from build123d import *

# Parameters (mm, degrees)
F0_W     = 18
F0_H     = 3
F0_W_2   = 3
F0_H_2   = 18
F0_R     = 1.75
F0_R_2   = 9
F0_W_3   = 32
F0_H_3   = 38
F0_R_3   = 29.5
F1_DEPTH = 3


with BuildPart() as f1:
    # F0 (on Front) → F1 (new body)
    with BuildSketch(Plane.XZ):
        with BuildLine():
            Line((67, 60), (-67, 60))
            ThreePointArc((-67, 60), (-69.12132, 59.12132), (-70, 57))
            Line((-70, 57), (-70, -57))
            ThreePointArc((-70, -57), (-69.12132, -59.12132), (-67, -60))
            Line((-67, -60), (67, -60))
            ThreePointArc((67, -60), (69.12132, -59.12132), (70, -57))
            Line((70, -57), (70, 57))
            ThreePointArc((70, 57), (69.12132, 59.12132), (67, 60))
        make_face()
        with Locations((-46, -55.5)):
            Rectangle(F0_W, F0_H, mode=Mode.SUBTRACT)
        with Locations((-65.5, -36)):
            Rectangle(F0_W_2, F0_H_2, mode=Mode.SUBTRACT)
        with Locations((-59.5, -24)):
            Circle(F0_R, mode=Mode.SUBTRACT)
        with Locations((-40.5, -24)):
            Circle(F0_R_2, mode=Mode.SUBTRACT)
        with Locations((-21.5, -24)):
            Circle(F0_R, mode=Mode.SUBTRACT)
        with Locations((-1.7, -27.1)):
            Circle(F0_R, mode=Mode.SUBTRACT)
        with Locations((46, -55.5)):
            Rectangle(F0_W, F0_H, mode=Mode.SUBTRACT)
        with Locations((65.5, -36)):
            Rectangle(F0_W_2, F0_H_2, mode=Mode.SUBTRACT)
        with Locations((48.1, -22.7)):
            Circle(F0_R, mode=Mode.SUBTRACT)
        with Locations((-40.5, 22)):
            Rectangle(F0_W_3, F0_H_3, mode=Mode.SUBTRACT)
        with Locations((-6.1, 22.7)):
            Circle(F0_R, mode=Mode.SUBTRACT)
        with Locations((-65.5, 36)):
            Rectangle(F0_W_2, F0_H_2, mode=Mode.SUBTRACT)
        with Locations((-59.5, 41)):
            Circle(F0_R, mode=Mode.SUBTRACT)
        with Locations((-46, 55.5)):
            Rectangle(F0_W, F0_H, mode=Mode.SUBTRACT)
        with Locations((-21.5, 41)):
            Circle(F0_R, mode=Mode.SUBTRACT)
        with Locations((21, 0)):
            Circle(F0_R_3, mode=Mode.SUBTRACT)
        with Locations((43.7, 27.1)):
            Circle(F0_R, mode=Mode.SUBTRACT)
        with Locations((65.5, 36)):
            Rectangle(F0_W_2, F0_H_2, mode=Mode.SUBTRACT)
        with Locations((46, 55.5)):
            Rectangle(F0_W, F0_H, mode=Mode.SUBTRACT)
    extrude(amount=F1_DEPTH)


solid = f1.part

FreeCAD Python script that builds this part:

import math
import FreeCAD as App
import Part
import Sketcher
from FreeCAD import Vector

doc = App.newDocument("Part")
body = doc.addObject("PartDesign::Body", "Body")

# Sketch on XZ plane
sketch1 = doc.addObject("Sketcher::SketchObject", "Sketch")
body.addObject(sketch1)
sketch1.AttachmentSupport = (doc.XZ_Plane, [""])
sketch1.MapMode = "FlatFace"
sketch1.addGeometry(Part.LineSegment(Vector(67, 60, 0), Vector(-67, 60, 0)), False)
sketch1.addGeometry(Part.ArcOfCircle(Part.Circle(Vector(-67, 57, 0), Vector(0, 0, 1), 3), math.radians(90), math.radians(180)), False)
sketch1.addGeometry(Part.LineSegment(Vector(-70, 57, 0), Vector(-70, -57, 0)), False)
sketch1.addGeometry(Part.ArcOfCircle(Part.Circle(Vector(-67, -57, 0), Vector(0, 0, 1), 3), math.radians(-180), math.radians(-90)), False)
sketch1.addGeometry(Part.LineSegment(Vector(-67, -60, 0), Vector(67, -60, 0)), False)
sketch1.addGeometry(Part.ArcOfCircle(Part.Circle(Vector(67, -57, 0), Vector(0, 0, 1), 3), math.radians(-90), math.radians(0)), False)
sketch1.addGeometry(Part.LineSegment(Vector(70, -57, 0), Vector(70, 57, 0)), False)
sketch1.addGeometry(Part.ArcOfCircle(Part.Circle(Vector(67, 57, 0), Vector(0, 0, 1), 3), math.radians(0), math.radians(90)), False)
sketch1.addGeometry(Part.LineSegment(Vector(-37, -57, 0), Vector(-55, -57, 0)), False)
sketch1.addGeometry(Part.LineSegment(Vector(-55, -57, 0), Vector(-55, -54, 0)), False)
sketch1.addGeometry(Part.LineSegment(Vector(-55, -54, 0), Vector(-37, -54, 0)), False)
sketch1.addGeometry(Part.LineSegment(Vector(-37, -54, 0), Vector(-37, -57, 0)), False)
sketch1.addGeometry(Part.LineSegment(Vector(-64, -45, 0), Vector(-67, -45, 0)), False)
sketch1.addGeometry(Part.LineSegment(Vector(-67, -45, 0), Vector(-67, -27, 0)), False)
sketch1.addGeometry(Part.LineSegment(Vector(-67, -27, 0), Vector(-64, -27, 0)), False)
sketch1.addGeometry(Part.LineSegment(Vector(-64, -27, 0), Vector(-64, -45, 0)), False)
sketch1.addGeometry(Part.Circle(Vector(-59.5, -24, 0), Vector(0, 0, 1), 1.8), False)
sketch1.addGeometry(Part.Circle(Vector(-40.5, -24, 0), Vector(0, 0, 1), 9), False)
sketch1.addGeometry(Part.Circle(Vector(-21.5, -24, 0), Vector(0, 0, 1), 1.8), False)
sketch1.addGeometry(Part.Circle(Vector(-1.7, -27.1, 0), Vector(0, 0, 1), 1.8), False)
sketch1.addGeometry(Part.LineSegment(Vector(55, -57, 0), Vector(37, -57, 0)), False)
sketch1.addGeometry(Part.LineSegment(Vector(37, -57, 0), Vector(37, -54, 0)), False)
sketch1.addGeometry(Part.LineSegment(Vector(37, -54, 0), Vector(55, -54, 0)), False)
sketch1.addGeometry(Part.LineSegment(Vector(55, -54, 0), Vector(55, -57, 0)), False)
sketch1.addGeometry(Part.LineSegment(Vector(67, -45, 0), Vector(64, -45, 0)), False)
sketch1.addGeometry(Part.LineSegment(Vector(64, -45, 0), Vector(64, -27, 0)), False)
sketch1.addGeometry(Part.LineSegment(Vector(64, -27, 0), Vector(67, -27, 0)), False)
sketch1.addGeometry(Part.LineSegment(Vector(67, -27, 0), Vector(67, -45, 0)), False)
sketch1.addGeometry(Part.Circle(Vector(48.1, -22.7, 0), Vector(0, 0, 1), 1.8), False)
sketch1.addGeometry(Part.LineSegment(Vector(-24.5, 3, 0), Vector(-56.5, 3, 0)), False)
sketch1.addGeometry(Part.LineSegment(Vector(-56.5, 3, 0), Vector(-56.5, 41, 0)), False)
sketch1.addGeometry(Part.LineSegment(Vector(-56.5, 41, 0), Vector(-24.5, 41, 0)), False)
sketch1.addGeometry(Part.LineSegment(Vector(-24.5, 41, 0), Vector(-24.5, 3, 0)), False)
sketch1.addGeometry(Part.Circle(Vector(-6.1, 22.7, 0), Vector(0, 0, 1), 1.8), False)
sketch1.addGeometry(Part.LineSegment(Vector(-64, 27, 0), Vector(-67, 27, 0)), False)
sketch1.addGeometry(Part.LineSegment(Vector(-67, 27, 0), Vector(-67, 45, 0)), False)
sketch1.addGeometry(Part.LineSegment(Vector(-67, 45, 0), Vector(-64, 45, 0)), False)
sketch1.addGeometry(Part.LineSegment(Vector(-64, 45, 0), Vector(-64, 27, 0)), False)
sketch1.addGeometry(Part.Circle(Vector(-59.5, 41, 0), Vector(0, 0, 1), 1.8), False)
sketch1.addGeometry(Part.LineSegment(Vector(-37, 54, 0), Vector(-55, 54, 0)), False)
sketch1.addGeometry(Part.LineSegment(Vector(-55, 54, 0), Vector(-55, 57, 0)), False)
sketch1.addGeometry(Part.LineSegment(Vector(-55, 57, 0), Vector(-37, 57, 0)), False)
sketch1.addGeometry(Part.LineSegment(Vector(-37, 57, 0), Vector(-37, 54, 0)), False)
sketch1.addGeometry(Part.Circle(Vector(-21.5, 41, 0), Vector(0, 0, 1), 1.8), False)
sketch1.addGeometry(Part.Circle(Vector(21, 0, 0), Vector(0, 0, 1), 29.5), False)
sketch1.addGeometry(Part.Circle(Vector(43.7, 27.1, 0), Vector(0, 0, 1), 1.8), False)
sketch1.addGeometry(Part.LineSegment(Vector(67, 27, 0), Vector(64, 27, 0)), False)
sketch1.addGeometry(Part.LineSegment(Vector(64, 27, 0), Vector(64, 45, 0)), False)
sketch1.addGeometry(Part.LineSegment(Vector(64, 45, 0), Vector(67, 45, 0)), False)
sketch1.addGeometry(Part.LineSegment(Vector(67, 45, 0), Vector(67, 27, 0)), False)
sketch1.addGeometry(Part.LineSegment(Vector(55, 54, 0), Vector(37, 54, 0)), False)
sketch1.addGeometry(Part.LineSegment(Vector(37, 54, 0), Vector(37, 57, 0)), False)
sketch1.addGeometry(Part.LineSegment(Vector(37, 57, 0), Vector(55, 57, 0)), False)
sketch1.addGeometry(Part.LineSegment(Vector(55, 57, 0), Vector(55, 54, 0)), False)
sketch1.addConstraint(Sketcher.Constraint("Tangent", 0, 2, 1, 1))
sketch1.addConstraint(Sketcher.Constraint("Tangent", 1, 2, 2, 1))
sketch1.addConstraint(Sketcher.Constraint("Tangent", 2, 2, 3, 1))
sketch1.addConstraint(Sketcher.Constraint("Tangent", 3, 2, 4, 1))
sketch1.addConstraint(Sketcher.Constraint("Tangent", 4, 2, 5, 1))
sketch1.addConstraint(Sketcher.Constraint("Tangent", 5, 2, 6, 1))
sketch1.addConstraint(Sketcher.Constraint("Tangent", 6, 2, 7, 1))
sketch1.addConstraint(Sketcher.Constraint("Tangent", 7, 2, 0, 1))
sketch1.addConstraint(Sketcher.Constraint("Coincident", 8, 2, 9, 1))
sketch1.addConstraint(Sketcher.Constraint("Coincident", 9, 2, 10, 1))
sketch1.addConstraint(Sketcher.Constraint("Coincident", 10, 2, 11, 1))
sketch1.addConstraint(Sketcher.Constraint("Coincident", 11, 2, 8, 1))
sketch1.addConstraint(Sketcher.Constraint("Coincident", 12, 2, 13, 1))
sketch1.addConstraint(Sketcher.Constraint("Coincident", 13, 2, 14, 1))
sketch1.addConstraint(Sketcher.Constraint("Coincident", 14, 2, 15, 1))
sketch1.addConstraint(Sketcher.Constraint("Coincident", 15, 2, 12, 1))
sketch1.addConstraint(Sketcher.Constraint("Coincident", 20, 2, 21, 1))
sketch1.addConstraint(Sketcher.Constraint("Coincident", 21, 2, 22, 1))
sketch1.addConstraint(Sketcher.Constraint("Coincident", 22, 2, 23, 1))
sketch1.addConstraint(Sketcher.Constraint("Coincident", 23, 2, 20, 1))
sketch1.addConstraint(Sketcher.Constraint("Coincident", 24, 2, 25, 1))
sketch1.addConstraint(Sketcher.Constraint("Coincident", 25, 2, 26, 1))
sketch1.addConstraint(Sketcher.Constraint("Coincident", 26, 2, 27, 1))
sketch1.addConstraint(Sketcher.Constraint("Coincident", 27, 2, 24, 1))
sketch1.addConstraint(Sketcher.Constraint("Coincident", 29, 2, 30, 1))
sketch1.addConstraint(Sketcher.Constraint("Coincident", 30, 2, 31, 1))
sketch1.addConstraint(Sketcher.Constraint("Coincident", 31, 2, 32, 1))
sketch1.addConstraint(Sketcher.Constraint("Coincident", 32, 2, 29, 1))
sketch1.addConstraint(Sketcher.Constraint("Coincident", 34, 2, 35, 1))
sketch1.addConstraint(Sketcher.Constraint("Coincident", 35, 2, 36, 1))
sketch1.addConstraint(Sketcher.Constraint("Coincident", 36, 2, 37, 1))
sketch1.addConstraint(Sketcher.Constraint("Coincident", 37, 2, 34, 1))
sketch1.addConstraint(Sketcher.Constraint("Coincident", 39, 2, 40, 1))
sketch1.addConstraint(Sketcher.Constraint("Coincident", 40, 2, 41, 1))
sketch1.addConstraint(Sketcher.Constraint("Coincident", 41, 2, 42, 1))
sketch1.addConstraint(Sketcher.Constraint("Coincident", 42, 2, 39, 1))
sketch1.addConstraint(Sketcher.Constraint("Coincident", 46, 2, 47, 1))
sketch1.addConstraint(Sketcher.Constraint("Coincident", 47, 2, 48, 1))
sketch1.addConstraint(Sketcher.Constraint("Coincident", 48, 2, 49, 1))
sketch1.addConstraint(Sketcher.Constraint("Coincident", 49, 2, 46, 1))
sketch1.addConstraint(Sketcher.Constraint("Coincident", 50, 2, 51, 1))
sketch1.addConstraint(Sketcher.Constraint("Coincident", 51, 2, 52, 1))
sketch1.addConstraint(Sketcher.Constraint("Coincident", 52, 2, 53, 1))
sketch1.addConstraint(Sketcher.Constraint("Coincident", 53, 2, 50, 1))
sketch1.addConstraint(Sketcher.Constraint("Horizontal", 0))
sketch1.addConstraint(Sketcher.Constraint("Vertical", 2))
sketch1.addConstraint(Sketcher.Constraint("Horizontal", 4))
sketch1.addConstraint(Sketcher.Constraint("Vertical", 6))
sketch1.addConstraint(Sketcher.Constraint("Horizontal", 8))
sketch1.addConstraint(Sketcher.Constraint("Vertical", 9))
sketch1.addConstraint(Sketcher.Constraint("Horizontal", 10))
sketch1.addConstraint(Sketcher.Constraint("Vertical", 11))
sketch1.addConstraint(Sketcher.Constraint("Horizontal", 12))
sketch1.addConstraint(Sketcher.Constraint("Vertical", 13))
sketch1.addConstraint(Sketcher.Constraint("Horizontal", 14))
sketch1.addConstraint(Sketcher.Constraint("Vertical", 15))
sketch1.addConstraint(Sketcher.Constraint("Horizontal", 20))
sketch1.addConstraint(Sketcher.Constraint("Vertical", 21))
sketch1.addConstraint(Sketcher.Constraint("Horizontal", 22))
sketch1.addConstraint(Sketcher.Constraint("Vertical", 23))
sketch1.addConstraint(Sketcher.Constraint("Horizontal", 24))
sketch1.addConstraint(Sketcher.Constraint("Vertical", 25))
sketch1.addConstraint(Sketcher.Constraint("Horizontal", 26))
sketch1.addConstraint(Sketcher.Constraint("Vertical", 27))
sketch1.addConstraint(Sketcher.Constraint("Horizontal", 29))
sketch1.addConstraint(Sketcher.Constraint("Vertical", 30))
sketch1.addConstraint(Sketcher.Constraint("Horizontal", 31))
sketch1.addConstraint(Sketcher.Constraint("Vertical", 32))
sketch1.addConstraint(Sketcher.Constraint("Horizontal", 34))
sketch1.addConstraint(Sketcher.Constraint("Vertical", 35))
sketch1.addConstraint(Sketcher.Constraint("Horizontal", 36))
sketch1.addConstraint(Sketcher.Constraint("Vertical", 37))
sketch1.addConstraint(Sketcher.Constraint("Horizontal", 39))
sketch1.addConstraint(Sketcher.Constraint("Vertical", 40))
sketch1.addConstraint(Sketcher.Constraint("Horizontal", 41))
sketch1.addConstraint(Sketcher.Constraint("Vertical", 42))
sketch1.addConstraint(Sketcher.Constraint("Horizontal", 46))
sketch1.addConstraint(Sketcher.Constraint("Vertical", 47))
sketch1.addConstraint(Sketcher.Constraint("Horizontal", 48))
sketch1.addConstraint(Sketcher.Constraint("Vertical", 49))
sketch1.addConstraint(Sketcher.Constraint("Horizontal", 50))
sketch1.addConstraint(Sketcher.Constraint("Vertical", 51))
sketch1.addConstraint(Sketcher.Constraint("Horizontal", 52))
sketch1.addConstraint(Sketcher.Constraint("Vertical", 53))
sketch1.addConstraint(Sketcher.Constraint("Equal", 1, 3))
sketch1.addConstraint(Sketcher.Constraint("Equal", 3, 5))
sketch1.addConstraint(Sketcher.Constraint("Equal", 5, 7))
sketch1.addConstraint(Sketcher.Constraint("Equal", 16, 18))
sketch1.addConstraint(Sketcher.Constraint("Equal", 18, 19))
sketch1.addConstraint(Sketcher.Constraint("Equal", 19, 28))
sketch1.addConstraint(Sketcher.Constraint("Equal", 28, 33))
sketch1.addConstraint(Sketcher.Constraint("Equal", 33, 38))
sketch1.addConstraint(Sketcher.Constraint("Equal", 38, 43))
sketch1.addConstraint(Sketcher.Constraint("Equal", 43, 45))
sketch1.addConstraint(Sketcher.Constraint("Symmetric", 1, 3, 5, 3, -1, 1))
sketch1.addConstraint(Sketcher.Constraint("Symmetric", 26, 2, 34, 2, -1, 1))
sketch1.addConstraint(Sketcher.Constraint("Symmetric", 24, 2, 36, 2, -1, 1))
sketch1.addConstraint(Sketcher.Constraint("Symmetric", 22, 2, 39, 2, -1, 1))
sketch1.addConstraint(Sketcher.Constraint("Symmetric", 20, 2, 41, 2, -1, 1))
sketch1.addConstraint(Sketcher.Constraint("Symmetric", 14, 2, 46, 2, -1, 1))
sketch1.addConstraint(Sketcher.Constraint("Symmetric", 12, 2, 48, 2, -1, 1))
sketch1.addConstraint(Sketcher.Constraint("Symmetric", 10, 2, 50, 2, -1, 1))
sketch1.addConstraint(Sketcher.Constraint("Symmetric", 8, 2, 52, 2, -1, 1))
sketch1.addConstraint(Sketcher.Constraint("Symmetric", 11, 2, 20, 2, -2))
sketch1.addConstraint(Sketcher.Constraint("Symmetric", 9, 2, 22, 2, -2))
sketch1.addConstraint(Sketcher.Constraint("Symmetric", 15, 2, 24, 2, -2))
sketch1.addConstraint(Sketcher.Constraint("Symmetric", 13, 2, 26, 2, -2))
sketch1.addConstraint(Sketcher.Constraint("PointOnObject", 44, 3, -1))
sketch1.addConstraint(Sketcher.Constraint("Horizontal", 16, 3, 17, 3))
sketch1.addConstraint(Sketcher.Constraint("Horizontal", 17, 3, 18, 3))
sketch1.addConstraint(Sketcher.Constraint("Horizontal", 38, 3, 43, 3))
sketch1.addConstraint(Sketcher.Constraint("Horizontal", 5, 2, 8, 2))
sketch1.addConstraint(Sketcher.Constraint("Horizontal", 43, 3, 30, 2))
sketch1.addConstraint(Sketcher.Constraint("Vertical", 16, 3, 38, 3))
sketch1.addConstraint(Sketcher.Constraint("Vertical", 18, 3, 43, 3))
sketch1.addConstraint(Sketcher.Constraint("Vertical", 3, 2, 12, 2))
sketch1.addConstraint(Sketcher.Constraint("Equal", 48, 9))
sketch1.addConstraint(Sketcher.Constraint("Equal", 52, 13))
sketch1.addConstraint(Sketcher.Constraint("Diameter", 17, 18.0))
sketch1.addConstraint(Sketcher.Constraint("Diameter", 44, 59.0))
sketch1.addConstraint(Sketcher.Constraint("Radius", 1, 3.000001))
sketch1.addConstraint(Sketcher.Constraint("Diameter", 16, 3.5))
sketch1.addConstraint(Sketcher.Constraint("DistanceX", 0, 2, 0, 1, 134.0))
sketch1.addConstraint(Sketcher.Constraint("DistanceX", 8, 2, 8, 1, 18.0))
sketch1.addConstraint(Sketcher.Constraint("DistanceX", 12, 2, 12, 1, 3.0))
sketch1.addConstraint(Sketcher.Constraint("DistanceX", 29, 2, 29, 1, 32.0))
sketch1.addConstraint(Sketcher.Constraint("DistanceY", 2, 2, 2, 1, 114.0))
sketch1.addConstraint(Sketcher.Constraint("DistanceY", 30, 1, 30, 2, 38.0))
sketch1.addConstraint(Sketcher.Constraint("DistanceY", 16, 3, -1, 1, 24.0))
sketch1.addConstraint(Sketcher.Constraint("DistanceY", -1, 1, 38, 3, 41.0))
sketch1.addConstraint(Sketcher.Constraint("DistanceX", -1, 1, 44, 3, 21.0))
sketch1.addConstraint(Sketcher.Constraint("DistanceX", 8, 2, -1, 1, 55.0))
sketch1.addConstraint(Sketcher.Constraint("DistanceY", 12, 2, -1, 1, 45.0))
sketch1.addConstraint(Sketcher.Constraint("DistanceX", 16, 3, 17, 3, 19.0))
sketch1.addConstraint(Sketcher.Constraint("DistanceX", 17, 3, 18, 3, 19.0))
sketch1.addConstraint(Sketcher.Constraint("DistanceX", 16, 3, 29, 2, 3.0))
sketch1.addConstraint(Sketcher.Constraint("DistanceX", 16, 3, -1, 1, 59.5))
sketch1.addConstraint(Sketcher.Constraint("DistanceX", 19, 3, -1, 1, 1.7))
sketch1.addConstraint(Sketcher.Constraint("DistanceY", 19, 3, -1, 1, 27.1))
sketch1.addConstraint(Sketcher.Constraint("DistanceX", -1, 1, 28, 3, 48.1))
sketch1.addConstraint(Sketcher.Constraint("DistanceY", 28, 3, -1, 1, 22.7))
sketch1.addConstraint(Sketcher.Constraint("DistanceX", 33, 3, -1, 1, 6.1))
sketch1.addConstraint(Sketcher.Constraint("DistanceY", -1, 1, 33, 3, 22.7))
sketch1.addConstraint(Sketcher.Constraint("DistanceX", -1, 1, 45, 3, 43.7))
sketch1.addConstraint(Sketcher.Constraint("DistanceY", -1, 1, 45, 3, 27.1))
pad1 = doc.addObject("PartDesign::Pad", "Pad")
body.addObject(pad1)
pad1.Profile = sketch1
pad1.Length = 3

doc.recompute()
